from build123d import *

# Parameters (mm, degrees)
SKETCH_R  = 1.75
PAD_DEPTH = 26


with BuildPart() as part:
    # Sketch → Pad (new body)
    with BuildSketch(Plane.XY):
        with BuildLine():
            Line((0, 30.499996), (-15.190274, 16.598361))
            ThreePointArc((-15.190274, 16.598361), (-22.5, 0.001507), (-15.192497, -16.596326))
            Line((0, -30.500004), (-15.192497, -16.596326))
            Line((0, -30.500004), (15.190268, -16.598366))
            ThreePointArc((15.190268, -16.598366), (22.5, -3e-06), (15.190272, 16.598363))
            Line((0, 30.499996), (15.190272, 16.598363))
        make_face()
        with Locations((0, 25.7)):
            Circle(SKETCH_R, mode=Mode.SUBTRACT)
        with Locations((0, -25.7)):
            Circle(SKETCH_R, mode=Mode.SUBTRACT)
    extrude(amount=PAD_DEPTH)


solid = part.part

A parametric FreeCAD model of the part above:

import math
import FreeCAD as App
import Part
import Sketcher
Q = App.Units.Quantity

doc = App.newDocument("Part")
params = doc.addObject("Spreadsheet::Sheet", "Params")
for row, (alias, value) in enumerate([
    ("sketch1_diameter", "3.5 mm"),
    ("sketch1_radius", "22.5 mm"),
    ("pad1_length", "26 mm"),
], start=1):
    params.set(f"A{row}", alias)
    params.set(f"B{row}", "=" + value)
    params.setAlias(f"B{row}", alias)

body = doc.addObject("PartDesign::Body", "Body")

sketch1 = doc.addObject("Sketcher::SketchObject", "Sketch")
body.addObject(sketch1)
sketch1.AttachmentSupport = (doc.XY_Plane, [""])
sketch1.MapMode = "FlatFace"
sketch1.addGeometry(Part.LineSegment(App.Vector(0, 30.5, 0), App.Vector(-15.2, 16.6, 0)), False)
sketch1.addGeometry(Part.ArcOfCircle(Part.Circle(App.Vector(0, 0, 0), App.Vector(0, 0, 1), 22.5), math.radians(132), math.radians(228)), False)
sketch1.addGeometry(Part.LineSegment(App.Vector(-15.2, -16.6, 0), App.Vector(0, -30.5, 0)), False)
sketch1.addGeometry(Part.LineSegment(App.Vector(0, -30.5, 0), App.Vector(15.2, -16.6, 0)), False)
sketch1.addGeometry(Part.ArcOfCircle(Part.Circle(App.Vector(0, 0, 0), App.Vector(0, 0, 1), 22.5), math.radians(-48), math.radians(48)), False)
sketch1.addGeometry(Part.LineSegment(App.Vector(15.2, 16.6, 0), App.Vector(0, 30.5, 0)), False)
sketch1.addGeometry(Part.Circle(App.Vector(0, -25.7, 0), App.Vector(0, 0, 1), 1.8), False)
sketch1.addGeometry(Part.Circle(App.Vector(0, 25.7, 0), App.Vector(0, 0, 1), 1.8), False)
sketch1.addConstraint(Sketcher.Constraint("Tangent", 0, 2, 1, 1))
sketch1.addConstraint(Sketcher.Constraint("Coincident", 1, 2, 2, 1))
sketch1.addConstraint(Sketcher.Constraint("Coincident", 2, 2, 3, 1))
sketch1.addConstraint(Sketcher.Constraint("Tangent", 3, 2, 4, 1))
sketch1.addConstraint(Sketcher.Constraint("Tangent", 4, 2, 5, 1))
sketch1.addConstraint(Sketcher.Constraint("Coincident", 5, 2, 0, 1))
sketch1.addConstraint(Sketcher.Constraint("Coincident", 1, 3, -1, 1))
sketch1.addConstraint(Sketcher.Constraint("Coincident", 4, 3, -1, 1))
sketch1.addConstraint(Sketcher.Constraint("Equal", 1, 4))
sketch1.addConstraint(Sketcher.Constraint("Equal", 6, 7))
sketch1.addConstraint(Sketcher.Constraint("Symmetric", 6, 3, 7, 3, -1, 1))
sketch1.addConstraint(Sketcher.Constraint("Symmetric", 2, 2, 5, 2, -1, 1))
sketch1.addConstraint(Sketcher.Constraint("PointOnObject", 6, 3, -2))
sketch1.addConstraint(Sketcher.Constraint("PointOnObject", 2, 2, -2))
sketch1.addConstraint(Sketcher.Constraint("Diameter", 6, Q("3.5 mm")))
sketch1.addConstraint(Sketcher.Constraint("Radius", 1, Q("22.5 mm")))
sketch1.addConstraint(Sketcher.Constraint("DistanceY", 6, 3, -1, 1, Q("25.7 mm")))
sketch1.addConstraint(Sketcher.Constraint("DistanceY", -1, 1, 0, 2, Q("16.598361 mm")))
sketch1.addConstraint(Sketcher.Constraint("DistanceY", 3, 2, 1, 2, Q("0.00204 mm")))
sketch1.setExpression("Constraints[14]", "Params.sketch1_diameter")
sketch1.setExpression("Constraints[15]", "Params.sketch1_radius")
pad1 = doc.addObject("PartDesign::Pad", "Pad")
body.addObject(pad1)
pad1.Profile = sketch1
pad1.setExpression("Length", "Params.pad1_length")

doc.recompute()
